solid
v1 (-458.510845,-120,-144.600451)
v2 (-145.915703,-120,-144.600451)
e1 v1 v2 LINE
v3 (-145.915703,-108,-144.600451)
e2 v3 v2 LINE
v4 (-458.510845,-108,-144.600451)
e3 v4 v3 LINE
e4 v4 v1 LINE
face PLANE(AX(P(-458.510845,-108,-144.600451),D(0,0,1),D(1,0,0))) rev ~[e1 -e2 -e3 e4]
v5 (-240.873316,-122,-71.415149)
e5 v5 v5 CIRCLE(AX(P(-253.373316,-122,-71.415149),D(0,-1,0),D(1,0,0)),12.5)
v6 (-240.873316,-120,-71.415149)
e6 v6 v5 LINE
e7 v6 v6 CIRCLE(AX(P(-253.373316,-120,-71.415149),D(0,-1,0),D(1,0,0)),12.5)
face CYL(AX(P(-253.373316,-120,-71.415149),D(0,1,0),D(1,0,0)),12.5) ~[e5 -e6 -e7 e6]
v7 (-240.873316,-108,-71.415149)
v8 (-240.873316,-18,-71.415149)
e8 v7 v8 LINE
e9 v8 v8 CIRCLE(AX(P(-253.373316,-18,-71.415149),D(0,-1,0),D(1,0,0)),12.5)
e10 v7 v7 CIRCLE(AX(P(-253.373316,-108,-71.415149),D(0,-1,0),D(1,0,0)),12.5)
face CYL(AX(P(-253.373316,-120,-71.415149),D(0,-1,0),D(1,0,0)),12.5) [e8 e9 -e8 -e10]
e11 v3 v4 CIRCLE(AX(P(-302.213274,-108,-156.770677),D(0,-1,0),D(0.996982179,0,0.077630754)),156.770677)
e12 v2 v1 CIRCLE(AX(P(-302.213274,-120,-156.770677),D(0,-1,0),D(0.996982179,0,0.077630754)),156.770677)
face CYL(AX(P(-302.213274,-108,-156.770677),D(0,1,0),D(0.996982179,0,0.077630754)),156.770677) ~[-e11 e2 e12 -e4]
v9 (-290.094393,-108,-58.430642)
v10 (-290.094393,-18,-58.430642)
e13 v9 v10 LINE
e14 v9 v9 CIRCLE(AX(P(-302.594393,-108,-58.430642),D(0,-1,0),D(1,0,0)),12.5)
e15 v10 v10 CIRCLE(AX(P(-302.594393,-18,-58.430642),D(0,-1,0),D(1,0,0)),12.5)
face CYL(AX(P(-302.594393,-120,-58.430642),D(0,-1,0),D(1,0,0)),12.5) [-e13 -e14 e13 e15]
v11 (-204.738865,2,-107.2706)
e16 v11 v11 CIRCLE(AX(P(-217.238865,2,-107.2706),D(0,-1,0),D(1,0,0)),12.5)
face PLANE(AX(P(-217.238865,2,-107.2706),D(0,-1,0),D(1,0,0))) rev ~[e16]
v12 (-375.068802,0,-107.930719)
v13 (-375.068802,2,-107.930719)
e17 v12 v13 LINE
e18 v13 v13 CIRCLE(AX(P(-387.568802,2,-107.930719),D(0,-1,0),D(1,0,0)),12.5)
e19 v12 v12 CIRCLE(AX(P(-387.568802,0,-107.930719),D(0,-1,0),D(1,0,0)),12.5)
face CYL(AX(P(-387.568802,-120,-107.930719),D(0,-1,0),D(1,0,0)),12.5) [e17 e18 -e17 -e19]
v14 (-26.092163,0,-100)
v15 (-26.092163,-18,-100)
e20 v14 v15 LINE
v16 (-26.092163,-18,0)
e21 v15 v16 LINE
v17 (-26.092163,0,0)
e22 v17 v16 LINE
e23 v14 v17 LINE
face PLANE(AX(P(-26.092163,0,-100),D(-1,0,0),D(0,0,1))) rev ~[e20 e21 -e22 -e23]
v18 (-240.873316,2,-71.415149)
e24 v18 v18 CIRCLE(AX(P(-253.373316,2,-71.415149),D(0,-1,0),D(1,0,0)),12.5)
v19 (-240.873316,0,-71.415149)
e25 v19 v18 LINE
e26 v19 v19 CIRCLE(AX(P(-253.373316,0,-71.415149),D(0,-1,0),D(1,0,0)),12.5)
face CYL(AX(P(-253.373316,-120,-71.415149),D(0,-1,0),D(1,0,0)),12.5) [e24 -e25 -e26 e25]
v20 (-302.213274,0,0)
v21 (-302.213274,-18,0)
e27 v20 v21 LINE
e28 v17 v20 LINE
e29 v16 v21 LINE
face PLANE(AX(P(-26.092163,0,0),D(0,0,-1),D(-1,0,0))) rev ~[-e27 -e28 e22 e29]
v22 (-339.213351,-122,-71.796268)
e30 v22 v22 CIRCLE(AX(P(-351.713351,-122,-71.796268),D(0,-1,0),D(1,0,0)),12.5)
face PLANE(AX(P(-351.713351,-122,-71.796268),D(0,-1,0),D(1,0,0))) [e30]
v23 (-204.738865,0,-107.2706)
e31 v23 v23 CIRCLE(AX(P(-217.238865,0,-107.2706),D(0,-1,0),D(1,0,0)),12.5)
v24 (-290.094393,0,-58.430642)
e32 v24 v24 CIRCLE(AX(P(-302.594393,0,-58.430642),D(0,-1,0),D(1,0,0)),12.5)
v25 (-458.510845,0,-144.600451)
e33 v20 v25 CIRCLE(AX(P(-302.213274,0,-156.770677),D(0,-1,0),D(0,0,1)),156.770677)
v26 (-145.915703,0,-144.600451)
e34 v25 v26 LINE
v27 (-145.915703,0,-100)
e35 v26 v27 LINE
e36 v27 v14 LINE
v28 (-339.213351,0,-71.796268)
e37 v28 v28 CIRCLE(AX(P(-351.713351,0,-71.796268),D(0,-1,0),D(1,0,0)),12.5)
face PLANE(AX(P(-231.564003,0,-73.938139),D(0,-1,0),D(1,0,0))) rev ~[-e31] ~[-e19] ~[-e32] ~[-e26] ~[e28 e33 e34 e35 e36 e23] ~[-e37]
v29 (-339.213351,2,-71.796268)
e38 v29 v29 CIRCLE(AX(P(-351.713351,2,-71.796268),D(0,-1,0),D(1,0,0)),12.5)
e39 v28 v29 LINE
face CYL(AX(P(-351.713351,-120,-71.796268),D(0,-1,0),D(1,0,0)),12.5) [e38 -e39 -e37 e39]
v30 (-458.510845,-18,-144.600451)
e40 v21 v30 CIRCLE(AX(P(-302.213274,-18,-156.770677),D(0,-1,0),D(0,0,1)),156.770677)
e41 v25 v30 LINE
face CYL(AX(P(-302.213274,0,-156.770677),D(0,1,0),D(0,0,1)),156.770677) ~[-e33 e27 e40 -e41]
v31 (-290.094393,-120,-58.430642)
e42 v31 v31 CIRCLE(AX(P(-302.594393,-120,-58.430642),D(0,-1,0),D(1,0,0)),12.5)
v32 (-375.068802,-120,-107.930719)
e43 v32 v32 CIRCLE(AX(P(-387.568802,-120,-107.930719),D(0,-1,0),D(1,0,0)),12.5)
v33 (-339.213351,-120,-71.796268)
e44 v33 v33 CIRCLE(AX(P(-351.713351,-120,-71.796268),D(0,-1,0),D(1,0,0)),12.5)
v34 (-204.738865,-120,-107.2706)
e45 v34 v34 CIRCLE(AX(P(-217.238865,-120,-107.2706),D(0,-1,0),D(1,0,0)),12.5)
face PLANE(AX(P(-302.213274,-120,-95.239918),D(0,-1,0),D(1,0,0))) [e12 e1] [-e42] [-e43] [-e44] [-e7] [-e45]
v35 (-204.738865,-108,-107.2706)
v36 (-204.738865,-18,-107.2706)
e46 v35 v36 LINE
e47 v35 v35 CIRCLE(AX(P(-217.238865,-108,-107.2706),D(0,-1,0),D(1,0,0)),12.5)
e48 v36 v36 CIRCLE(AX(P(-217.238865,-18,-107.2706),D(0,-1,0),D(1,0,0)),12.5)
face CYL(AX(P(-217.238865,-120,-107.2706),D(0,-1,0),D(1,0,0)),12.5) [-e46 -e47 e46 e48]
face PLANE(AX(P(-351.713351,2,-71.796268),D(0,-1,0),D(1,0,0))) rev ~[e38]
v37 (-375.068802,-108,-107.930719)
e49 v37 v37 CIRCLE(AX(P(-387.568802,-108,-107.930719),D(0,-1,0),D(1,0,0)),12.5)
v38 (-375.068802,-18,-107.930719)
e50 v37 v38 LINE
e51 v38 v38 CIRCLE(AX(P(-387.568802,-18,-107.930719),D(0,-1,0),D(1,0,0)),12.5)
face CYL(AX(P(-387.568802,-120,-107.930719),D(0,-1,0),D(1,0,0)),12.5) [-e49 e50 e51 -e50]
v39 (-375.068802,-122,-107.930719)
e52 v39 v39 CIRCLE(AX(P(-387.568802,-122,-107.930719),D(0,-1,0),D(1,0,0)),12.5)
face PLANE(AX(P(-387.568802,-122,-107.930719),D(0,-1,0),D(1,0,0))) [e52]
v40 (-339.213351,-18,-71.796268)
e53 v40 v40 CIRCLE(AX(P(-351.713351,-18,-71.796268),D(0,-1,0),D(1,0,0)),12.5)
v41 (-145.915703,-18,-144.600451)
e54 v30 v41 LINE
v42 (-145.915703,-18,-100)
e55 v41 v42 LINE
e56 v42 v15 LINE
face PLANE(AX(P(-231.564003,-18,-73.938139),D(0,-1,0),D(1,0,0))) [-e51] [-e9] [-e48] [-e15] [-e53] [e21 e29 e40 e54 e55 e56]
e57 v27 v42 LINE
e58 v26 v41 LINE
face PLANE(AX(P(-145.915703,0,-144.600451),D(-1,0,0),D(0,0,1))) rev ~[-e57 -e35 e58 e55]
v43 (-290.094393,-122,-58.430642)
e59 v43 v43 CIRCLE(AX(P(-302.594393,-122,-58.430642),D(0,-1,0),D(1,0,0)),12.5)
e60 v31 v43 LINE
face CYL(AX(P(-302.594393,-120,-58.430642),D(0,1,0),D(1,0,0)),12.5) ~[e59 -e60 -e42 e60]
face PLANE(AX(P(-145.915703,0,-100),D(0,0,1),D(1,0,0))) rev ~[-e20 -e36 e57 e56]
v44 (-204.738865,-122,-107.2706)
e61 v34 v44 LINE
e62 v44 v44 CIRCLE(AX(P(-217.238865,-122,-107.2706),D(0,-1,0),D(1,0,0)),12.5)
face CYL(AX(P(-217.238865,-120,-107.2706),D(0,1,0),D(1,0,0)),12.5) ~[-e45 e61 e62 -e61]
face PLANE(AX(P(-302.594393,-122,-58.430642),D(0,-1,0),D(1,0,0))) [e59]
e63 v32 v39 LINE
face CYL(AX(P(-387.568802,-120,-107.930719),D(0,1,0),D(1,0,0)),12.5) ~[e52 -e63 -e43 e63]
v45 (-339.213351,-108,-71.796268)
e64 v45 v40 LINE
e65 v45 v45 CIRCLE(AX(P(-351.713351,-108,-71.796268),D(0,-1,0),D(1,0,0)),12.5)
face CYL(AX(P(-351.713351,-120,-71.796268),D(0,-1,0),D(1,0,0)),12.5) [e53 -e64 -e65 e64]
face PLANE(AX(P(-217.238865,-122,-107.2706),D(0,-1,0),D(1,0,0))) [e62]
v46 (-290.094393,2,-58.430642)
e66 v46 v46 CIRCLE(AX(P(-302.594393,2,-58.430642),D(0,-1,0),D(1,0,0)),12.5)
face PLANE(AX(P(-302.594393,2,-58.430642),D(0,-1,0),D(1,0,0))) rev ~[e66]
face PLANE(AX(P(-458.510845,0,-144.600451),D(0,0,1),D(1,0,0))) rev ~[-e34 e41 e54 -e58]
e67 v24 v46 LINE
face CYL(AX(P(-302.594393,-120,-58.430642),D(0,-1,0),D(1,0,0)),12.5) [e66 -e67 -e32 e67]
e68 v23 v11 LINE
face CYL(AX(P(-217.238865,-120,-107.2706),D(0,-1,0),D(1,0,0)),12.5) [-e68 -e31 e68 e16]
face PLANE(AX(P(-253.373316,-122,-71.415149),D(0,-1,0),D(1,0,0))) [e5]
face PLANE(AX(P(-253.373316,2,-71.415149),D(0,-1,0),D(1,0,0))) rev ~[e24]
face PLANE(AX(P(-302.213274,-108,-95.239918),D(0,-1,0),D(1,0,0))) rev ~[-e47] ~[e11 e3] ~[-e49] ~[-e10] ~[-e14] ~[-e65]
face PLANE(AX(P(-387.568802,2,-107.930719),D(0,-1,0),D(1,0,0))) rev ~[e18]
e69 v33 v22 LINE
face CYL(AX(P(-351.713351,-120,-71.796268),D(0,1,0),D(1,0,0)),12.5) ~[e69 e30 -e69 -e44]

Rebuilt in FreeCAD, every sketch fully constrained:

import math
import FreeCAD as App
import Part
import Sketcher

doc = App.newDocument("Part")
body = doc.addObject("PartDesign::Body", "Body")

# Sketch on XZ plane
sketch1 = body.newObject("Sketcher::SketchObject", "Sketch")
sketch1.AttachmentSupport = (doc.getObject("XZ_Plane"), [""])
sketch1.MapMode = "FlatFace"
sketch1.addGeometry(Part.LineSegment(App.Vector(-26, -100, 0), App.Vector(-26, 0, 0)), False)
sketch1.addGeometry(Part.LineSegment(App.Vector(-26, 0, 0), App.Vector(-302, 0, 0)), False)
sketch1.addGeometry(Part.ArcOfCircle(Part.Circle(App.Vector(-302, -157, 0), App.Vector(0, 0, 1), 157), math.radians(90), math.radians(176)), False)
sketch1.addGeometry(Part.LineSegment(App.Vector(-459, -145, 0), App.Vector(-146, -145, 0)), False)
sketch1.addGeometry(Part.LineSegment(App.Vector(-146, -145, 0), App.Vector(-146, -100, 0)), False)
sketch1.addGeometry(Part.LineSegment(App.Vector(-146, -100, 0), App.Vector(-26, -100, 0)), False)
sketch1.addGeometry(Part.Circle(App.Vector(-388, -108, 0), App.Vector(0, 0, 1), 12), False)
sketch1.addGeometry(Part.Circle(App.Vector(-217, -107, 0), App.Vector(0, 0, 1), 12), False)
sketch1.addGeometry(Part.Circle(App.Vector(-352, -72, 0), App.Vector(0, 0, 1), 12), False)
sketch1.addGeometry(Part.Circle(App.Vector(-303, -58, 0), App.Vector(0, 0, 1), 12), False)
sketch1.addGeometry(Part.Circle(App.Vector(-253, -71, 0), App.Vector(0, 0, 1), 12), False)
sketch1.addConstraint(Sketcher.Constraint("Coincident", 0, 2, 1, 1))
sketch1.addConstraint(Sketcher.Constraint("Tangent", 1, 2, 2, 1))
sketch1.addConstraint(Sketcher.Constraint("Coincident", 2, 2, 3, 1))
sketch1.addConstraint(Sketcher.Constraint("Coincident", 3, 2, 4, 1))
sketch1.addConstraint(Sketcher.Constraint("Coincident", 4, 2, 5, 1))
sketch1.addConstraint(Sketcher.Constraint("Coincident", 5, 2, 0, 1))
sketch1.addConstraint(Sketcher.Constraint("Vertical", 0))
sketch1.addConstraint(Sketcher.Constraint("Horizontal", 1))
sketch1.addConstraint(Sketcher.Constraint("Horizontal", 3))
sketch1.addConstraint(Sketcher.Constraint("Vertical", 4))
sketch1.addConstraint(Sketcher.Constraint("Horizontal", 5))
sketch1.addConstraint(Sketcher.Constraint("Equal", 6, 7))
sketch1.addConstraint(Sketcher.Constraint("Equal", 7, 8))
sketch1.addConstraint(Sketcher.Constraint("Equal", 8, 9))
sketch1.addConstraint(Sketcher.Constraint("Equal", 9, 10))
sketch1.addConstraint(Sketcher.Constraint("PointOnObject", 0, 2, -1))
sketch1.addConstraint(Sketcher.Constraint("Diameter", 6, 25.0))
sketch1.addConstraint(Sketcher.Constraint("DistanceY", 0, 1, 0, 2, 100.0))
sketch1.addConstraint(Sketcher.Constraint("Radius", 2, 156.770677))
sketch1.addConstraint(Sketcher.Constraint("DistanceX", 1, 2, 1, 1, 276.12111))
sketch1.addConstraint(Sketcher.Constraint("DistanceX", 5, 1, 5, 2, 119.823539))
sketch1.addConstraint(Sketcher.Constraint("DistanceY", 4, 1, 4, 2, 44.600451))
sketch1.addConstraint(Sketcher.Constraint("DistanceY", 7, 3, -1, 1, 107.2706))
sketch1.addConstraint(Sketcher.Constraint("DistanceX", 7, 3, 0, 2, 191.146702))
sketch1.addConstraint(Sketcher.Constraint("DistanceY", 6, 3, -1, 1, 107.930719))
sketch1.addConstraint(Sketcher.Constraint("DistanceX", 8, 3, -1, 1, 351.713351))
sketch1.addConstraint(Sketcher.Constraint("DistanceY", 8, 3, -1, 1, 71.796268))
sketch1.addConstraint(Sketcher.Constraint("DistanceY", 9, 3, -1, 1, 58.430642))
sketch1.addConstraint(Sketcher.Constraint("DistanceY", 10, 3, -1, 1, 71.415149))
sketch1.addConstraint(Sketcher.Constraint("DistanceX", 6, 3, 2, 3, 85.355528))
sketch1.addConstraint(Sketcher.Constraint("DistanceX", 6, 3, 8, 3, 35.855452))
sketch1.addConstraint(Sketcher.Constraint("DistanceX", 9, 3, 2, 3, 0.38112))
sketch1.addConstraint(Sketcher.Constraint("DistanceX", 10, 3, 7, 3, 36.13445))
pad1 = body.newObject("PartDesign::Pad", "Pad")
pad1.Profile = sketch1
pad1.Length = 18
body2 = doc.addObject("PartDesign::Body", "Body001")

# Sketch on XZ plane
sketch2 = body2.newObject("Sketcher::SketchObject", "Sketch001")
sketch2.AttachmentSupport = (doc.getObject("XZ_Plane001"), [""])
sketch2.MapMode = "FlatFace"
sketch2.AttachmentOffset = App.Placement(App.Vector(0, 0, 108), App.Rotation())
sketch2.addGeometry(Part.LineSegment(App.Vector(-459, -145, 0), App.Vector(-146, -145, 0)), False)
sketch2.addGeometry(Part.ArcOfCircle(Part.Circle(App.Vector(-302, -157, 0), App.Vector(0, 0, 1), 157), math.radians(4), math.radians(176)), False)
sketch2.addGeometry(Part.Circle(App.Vector(-388, -108, 0), App.Vector(0, 0, 1), 12), False)
sketch2.addGeometry(Part.Circle(App.Vector(-217, -107, 0), App.Vector(0, 0, 1), 12), False)
sketch2.addGeometry(Part.Circle(App.Vector(-352, -72, 0), App.Vector(0, 0, 1), 12), False)
sketch2.addGeometry(Part.Circle(App.Vector(-303, -58, 0), App.Vector(0, 0, 1), 12), False)
sketch2.addGeometry(Part.Circle(App.Vector(-253, -71, 0), App.Vector(0, 0, 1), 12), False)
sketch2.addConstraint(Sketcher.Constraint("Coincident", 0, 1, 1, 2))
sketch2.addConstraint(Sketcher.Constraint("Coincident", 1, 1, 0, 2))
sketch2.addConstraint(Sketcher.Constraint("Horizontal", 0))
sketch2.addConstraint(Sketcher.Constraint("Equal", 2, 3))
sketch2.addConstraint(Sketcher.Constraint("Equal", 3, 4))
sketch2.addConstraint(Sketcher.Constraint("Equal", 4, 5))
sketch2.addConstraint(Sketcher.Constraint("Equal", 5, 6))
sketch2.addConstraint(Sketcher.Constraint("Diameter", 2, 25.0))
sketch2.addConstraint(Sketcher.Constraint("Radius", 1, 156.770677))
sketch2.addConstraint(Sketcher.Constraint("DistanceY", 3, 3, -1, 1, 107.2706))
sketch2.addConstraint(Sketcher.Constraint("DistanceX", 0, 1, 0, 2, 312.595142))
sketch2.addConstraint(Sketcher.Constraint("DistanceY", 2, 3, -1, 1, 107.930719))
sketch2.addConstraint(Sketcher.Constraint("DistanceX", 4, 3, -1, 1, 351.713351))
sketch2.addConstraint(Sketcher.Constraint("DistanceY", 4, 3, -1, 1, 71.796268))
sketch2.addConstraint(Sketcher.Constraint("DistanceY", 5, 3, -1, 1, 58.430642))
sketch2.addConstraint(Sketcher.Constraint("DistanceY", 6, 3, -1, 1, 71.415149))
sketch2.addConstraint(Sketcher.Constraint("DistanceY", 0, 1, -1, 1, 144.600451))
sketch2.addConstraint(Sketcher.Constraint("DistanceX", 2, 3, 1, 3, 85.355528))
sketch2.addConstraint(Sketcher.Constraint("DistanceX", 1, 3, 3, 3, 84.974409))
sketch2.addConstraint(Sketcher.Constraint("DistanceX", 2, 3, 4, 3, 35.855452))
sketch2.addConstraint(Sketcher.Constraint("DistanceX", 5, 3, 1, 3, 0.38112))
sketch2.addConstraint(Sketcher.Constraint("DistanceX", 6, 3, 3, 3, 36.13445))
pad2 = body2.newObject("PartDesign::Pad", "Pad001")
pad2.Profile = sketch2
pad2.Length = 12
body.AllowCompound = True
doc.recompute()

boolean = body.newObject("PartDesign::Boolean", "Boolean")
boolean.Type = "Fuse"
boolean.addObjects([body2])

# Sketch on XZ plane
sketch3 = body.newObject("Sketcher::SketchObject", "Sketch002")
sketch3.AttachmentSupport = (doc.getObject("XZ_Plane"), [""])
sketch3.MapMode = "FlatFace"
sketch3.AttachmentOffset = App.Placement(App.Vector(0, 0, 120), App.Rotation())
sketch3.addGeometry(Part.Circle(App.Vector(-388, -108, 0), App.Vector(0, 0, 1), 12), False)
sketch3.addGeometry(Part.Circle(App.Vector(-352, -72, 0), App.Vector(0, 0, 1), 12), False)
sketch3.addGeometry(Part.Circle(App.Vector(-303, -58, 0), App.Vector(0, 0, 1), 12), False)
sketch3.addGeometry(Part.Circle(App.Vector(-253, -71, 0), App.Vector(0, 0, 1), 12), False)
sketch3.addGeometry(Part.Circle(App.Vector(-217, -107, 0), App.Vector(0, 0, 1), 12), False)
sketch3.addConstraint(Sketcher.Constraint("Equal", 0, 1))
sketch3.addConstraint(Sketcher.Constraint("Equal", 1, 2))
sketch3.addConstraint(Sketcher.Constraint("Equal", 2, 3))
sketch3.addConstraint(Sketcher.Constraint("Equal", 3, 4))
sketch3.addConstraint(Sketcher.Constraint("Diameter", 0, 25.0))
sketch3.addConstraint(Sketcher.Constraint("DistanceY", 4, 3, -1, 1, 107.2706))
sketch3.addConstraint(Sketcher.Constraint("DistanceY", 0, 3, -1, 1, 107.930719))
sketch3.addConstraint(Sketcher.Constraint("DistanceX", 1, 3, -1, 1, 351.713351))
sketch3.addConstraint(Sketcher.Constraint("DistanceY", 1, 3, -1, 1, 71.796268))
sketch3.addConstraint(Sketcher.Constraint("DistanceY", 2, 3, -1, 1, 58.430642))
sketch3.addConstraint(Sketcher.Constraint("DistanceY", 3, 3, -1, 1, 71.415149))
sketch3.addConstraint(Sketcher.Constraint("DistanceX", 0, 3, 1, 3, 35.855452))
sketch3.addConstraint(Sketcher.Constraint("DistanceX", 0, 3, 2, 3, 84.974409))
sketch3.addConstraint(Sketcher.Constraint("DistanceX", 3, 3, 4, 3, 36.13445))
sketch3.addConstraint(Sketcher.Constraint("DistanceX", 2, 3, 4, 3, 85.355528))
pad3 = body.newObject("PartDesign::Pad", "Pad002")
pad3.Profile = sketch3
pad3.Type = "TwoLengths"
pad3.Length = 122
pad3.Length2 = 2
pad3.Reversed = True

doc.recompute()
